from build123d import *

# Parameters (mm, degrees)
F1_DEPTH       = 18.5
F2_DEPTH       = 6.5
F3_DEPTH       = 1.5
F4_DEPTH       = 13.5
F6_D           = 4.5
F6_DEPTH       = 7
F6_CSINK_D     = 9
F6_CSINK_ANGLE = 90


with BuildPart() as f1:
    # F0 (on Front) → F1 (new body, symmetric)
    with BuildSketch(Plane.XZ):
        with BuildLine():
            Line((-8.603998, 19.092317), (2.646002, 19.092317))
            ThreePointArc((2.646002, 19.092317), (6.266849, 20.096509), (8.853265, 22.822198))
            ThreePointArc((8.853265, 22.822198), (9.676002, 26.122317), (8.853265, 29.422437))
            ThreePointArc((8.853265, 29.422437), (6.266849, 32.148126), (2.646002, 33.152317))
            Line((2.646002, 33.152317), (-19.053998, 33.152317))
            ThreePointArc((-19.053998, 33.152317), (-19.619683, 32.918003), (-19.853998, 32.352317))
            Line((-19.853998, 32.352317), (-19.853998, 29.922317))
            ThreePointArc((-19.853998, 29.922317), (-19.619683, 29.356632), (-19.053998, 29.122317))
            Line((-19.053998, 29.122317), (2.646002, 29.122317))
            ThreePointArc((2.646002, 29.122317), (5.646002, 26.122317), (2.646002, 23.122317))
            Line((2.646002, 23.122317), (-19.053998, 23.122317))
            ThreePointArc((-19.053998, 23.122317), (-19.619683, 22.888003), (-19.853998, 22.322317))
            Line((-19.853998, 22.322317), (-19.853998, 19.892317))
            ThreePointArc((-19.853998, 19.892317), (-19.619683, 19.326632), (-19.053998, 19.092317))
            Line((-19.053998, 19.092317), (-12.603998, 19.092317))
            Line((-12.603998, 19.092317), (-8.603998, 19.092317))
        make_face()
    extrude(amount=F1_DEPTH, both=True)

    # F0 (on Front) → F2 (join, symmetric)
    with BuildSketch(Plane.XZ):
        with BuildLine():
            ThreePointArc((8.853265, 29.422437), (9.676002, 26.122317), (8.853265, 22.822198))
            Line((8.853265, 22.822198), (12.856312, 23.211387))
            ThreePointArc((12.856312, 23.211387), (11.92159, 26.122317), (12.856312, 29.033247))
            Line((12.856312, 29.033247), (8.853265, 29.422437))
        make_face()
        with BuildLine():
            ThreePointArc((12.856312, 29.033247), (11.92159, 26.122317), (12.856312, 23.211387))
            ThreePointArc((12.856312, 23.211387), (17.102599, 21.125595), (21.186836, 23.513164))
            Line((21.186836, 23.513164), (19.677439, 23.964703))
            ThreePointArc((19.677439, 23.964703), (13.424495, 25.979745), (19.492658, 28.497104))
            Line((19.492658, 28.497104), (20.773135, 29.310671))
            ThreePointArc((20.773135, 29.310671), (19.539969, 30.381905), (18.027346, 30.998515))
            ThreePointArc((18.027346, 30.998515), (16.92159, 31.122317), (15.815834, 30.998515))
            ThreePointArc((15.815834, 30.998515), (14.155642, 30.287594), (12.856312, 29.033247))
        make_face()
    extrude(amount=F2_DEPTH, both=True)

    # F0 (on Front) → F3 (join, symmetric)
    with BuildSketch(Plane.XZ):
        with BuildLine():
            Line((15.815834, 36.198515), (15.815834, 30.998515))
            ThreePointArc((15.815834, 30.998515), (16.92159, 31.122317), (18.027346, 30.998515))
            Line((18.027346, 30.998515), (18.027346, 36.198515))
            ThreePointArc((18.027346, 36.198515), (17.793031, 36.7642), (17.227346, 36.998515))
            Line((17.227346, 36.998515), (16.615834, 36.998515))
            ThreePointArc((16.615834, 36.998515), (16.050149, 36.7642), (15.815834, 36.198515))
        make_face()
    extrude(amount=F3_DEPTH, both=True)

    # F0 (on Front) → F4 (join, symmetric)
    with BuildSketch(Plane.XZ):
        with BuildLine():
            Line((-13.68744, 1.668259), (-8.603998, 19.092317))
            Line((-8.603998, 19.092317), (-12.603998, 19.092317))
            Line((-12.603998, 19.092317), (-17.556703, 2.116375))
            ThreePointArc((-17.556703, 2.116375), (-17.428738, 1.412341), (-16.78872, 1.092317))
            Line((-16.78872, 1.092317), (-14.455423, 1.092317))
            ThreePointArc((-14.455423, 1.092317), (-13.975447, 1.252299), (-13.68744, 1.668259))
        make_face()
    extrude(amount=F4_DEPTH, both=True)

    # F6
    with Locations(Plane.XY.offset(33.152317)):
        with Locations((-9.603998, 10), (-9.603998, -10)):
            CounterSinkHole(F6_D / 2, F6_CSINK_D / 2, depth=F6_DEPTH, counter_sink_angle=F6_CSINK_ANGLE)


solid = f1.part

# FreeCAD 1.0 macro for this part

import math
import FreeCAD as App
import Part
import Sketcher
from FreeCAD import Vector

doc = App.newDocument("Part")
body = doc.addObject("PartDesign::Body", "Body")

# Sketch on XZ plane
sketch1 = doc.addObject("Sketcher::SketchObject", "Sketch")
body.addObject(sketch1)
sketch1.AttachmentSupport = (doc.XZ_Plane, [""])
sketch1.MapMode = "FlatFace"
sketch1.addGeometry([
    Part.ArcOfCircle(Part.Circle(Vector(2.646001, 26.122319, 0), Vector(0, 0, 1), 7.030002), math.radians(-89.99999), math.radians(-27.997553)),  # 0
    Part.ArcOfCircle(Part.Circle(Vector(2.646, 26.122318, 0), Vector(0, 0, 1), 7.030002), math.radians(-27.997541), math.radians(27.997541)),  # 1
    Part.ArcOfCircle(Part.Circle(Vector(2.646003, 26.122319, 0), Vector(0, 0, 1), 7.029998), math.radians(27.997546), math.radians(90.000011)),  # 2
    Part.LineSegment(Vector(2.646002, 33.152317, 0), Vector(-19.053998, 33.152317, 0)),  # 3
    Part.ArcOfCircle(Part.Circle(Vector(-19.053998, 32.352317, 0), Vector(0, 0, 1), 0.8), math.radians(89.999982), math.radians(180.000018)),  # 4
    Part.LineSegment(Vector(-19.853998, 32.352317, 0), Vector(-19.853998, 29.922317, 0)),  # 5
    Part.ArcOfCircle(Part.Circle(Vector(-19.053997, 29.922318, 0), Vector(0, 0, 1), 0.800001), math.radians(-179.999896), math.radians(-90.000104)),  # 6
    Part.LineSegment(Vector(-19.053998, 29.122317, 0), Vector(2.646002, 29.122317, 0)),  # 7
    Part.ArcOfCircle(Part.Circle(Vector(2.646002, 26.122317, 0), Vector(0, 0, 1), 3), math.radians(-90), math.radians(90)),  # 8
    Part.LineSegment(Vector(2.646002, 23.122317, 0), Vector(-19.053998, 23.122317, 0)),  # 9
    Part.ArcOfCircle(Part.Circle(Vector(-19.053998, 22.322317, 0), Vector(0, 0, 1), 0.8), math.radians(89.999982), math.radians(180.000018)),  # 10
    Part.LineSegment(Vector(-19.853998, 22.322317, 0), Vector(-19.853998, 19.892317, 0)),  # 11
    Part.ArcOfCircle(Part.Circle(Vector(-19.053997, 19.892318, 0), Vector(0, 0, 1), 0.800001), math.radians(-179.999896), math.radians(-90.000104)),  # 12
    Part.LineSegment(Vector(-19.053998, 19.092317, 0), Vector(2.646002, 19.092317, 0)),  # 13
], False)
sketch1.addConstraint([
    Sketcher.Constraint("Tangent", 0, 2, 1, 1),
    Sketcher.Constraint("Tangent", 1, 2, 2, 1),
    Sketcher.Constraint("Tangent", 2, 2, 3, 1),
    Sketcher.Constraint("Tangent", 3, 2, 4, 1),
    Sketcher.Constraint("Tangent", 4, 2, 5, 1),
    Sketcher.Constraint("Tangent", 5, 2, 6, 1),
    Sketcher.Constraint("Tangent", 6, 2, 7, 1),
    Sketcher.Constraint("Tangent", 7, 2, 8, 2),
    Sketcher.Constraint("Tangent", 8, 1, 9, 1),
    Sketcher.Constraint("Tangent", 9, 2, 10, 1),
    Sketcher.Constraint("Tangent", 10, 2, 11, 1),
    Sketcher.Constraint("Tangent", 11, 2, 12, 1),
    Sketcher.Constraint("Tangent", 12, 2, 13, 1),
    Sketcher.Constraint("Tangent", 13, 2, 0, 1),
    Sketcher.Constraint("Horizontal", 3),
    Sketcher.Constraint("Vertical", 5),
    Sketcher.Constraint("Horizontal", 7),
    Sketcher.Constraint("Horizontal", 9),
    Sketcher.Constraint("Vertical", 11),
    Sketcher.Constraint("Horizontal", 13),
    Sketcher.Constraint("Coincident", 2, 3, 0, 3),
    Sketcher.Constraint("Coincident", 8, 3, 0, 3),
    Sketcher.Constraint("Equal", 4, 6),
    Sketcher.Constraint("Equal", 6, 10),
    Sketcher.Constraint("Equal", 10, 12),
    Sketcher.Constraint("Vertical", 6, 3, 10, 3),
    Sketcher.Constraint("Vertical", 0, 2, 1, 2),
    Sketcher.Constraint("Radius", 8, 3.0),
    Sketcher.Constraint("Radius", 4, 0.8),
    Sketcher.Constraint("Radius", 0, 7.030002),
    Sketcher.Constraint("DistanceX", 3, 2, 3, 1, 21.7),
    Sketcher.Constraint("DistanceX", -1, 1, 0, 3, 2.646001),
    Sketcher.Constraint("DistanceY", -1, 1, 0, 2, 22.822198),
    Sketcher.Constraint("DistanceY", -1, 1, 0, 3, 26.122319),
])
pad1 = doc.addObject("PartDesign::Pad", "Pad")
body.addObject(pad1)
pad1.Profile = sketch1
pad1.Length = 37
pad1.Midplane = True

# Sketch on XZ plane
sketch2 = doc.addObject("Sketcher::SketchObject", "Sketch001")
body.addObject(sketch2)
sketch2.AttachmentSupport = (doc.XZ_Plane, [""])
sketch2.MapMode = "FlatFace"
sketch2.addGeometry([
    Part.ArcOfCircle(Part.Circle(Vector(2.646, 26.122318, 0), Vector(0, 0, 1), 7.030002), math.radians(-27.997541), math.radians(27.997541)),  # 0
    Part.LineSegment(Vector(8.853265, 22.822198, 0), Vector(12.856312, 23.211387, 0)),  # 1
    Part.ArcOfCircle(Part.Circle(Vector(16.92159, 26.122318, 0), Vector(0, 0, 1), 5.000001), math.radians(-144.395547), math.radians(-31.455137)),  # 2
    Part.LineSegment(Vector(21.186836, 23.513164, 0), Vector(19.677439, 23.964703, 0)),  # 3
    Part.ArcOfCircle(Part.Circle(Vector(16.92159, 26.122317, 0), Vector(0, 0, 1), 3.5), math.radians(42.727354), math.radians(321.941832)),  # 4
    Part.LineSegment(Vector(19.492658, 28.497104, 0), Vector(20.773135, 29.310671, 0)),  # 5
    Part.ArcOfCircle(Part.Circle(Vector(16.921586, 26.122312, 0), Vector(0, 0, 1), 5.000006), math.radians(39.618372), math.radians(77.223316)),  # 6
    Part.ArcOfCircle(Part.Circle(Vector(16.92159, 26.122304, 0), Vector(0, 0, 1), 5.000013), math.radians(77.223377), math.radians(102.776623)),  # 7
    Part.ArcOfCircle(Part.Circle(Vector(16.921591, 26.122317, 0), Vector(0, 0, 1), 5), math.radians(102.776664), math.radians(144.395563)),  # 8
    Part.LineSegment(Vector(12.856312, 29.033247, 0), Vector(8.853265, 29.422437, 0)),  # 9
], False)
sketch2.addConstraint([
    Sketcher.Constraint("Coincident", 0, 1, 1, 1),
    Sketcher.Constraint("Coincident", 1, 2, 2, 1),
    Sketcher.Constraint("Coincident", 2, 2, 3, 1),
    Sketcher.Constraint("Coincident", 3, 2, 4, 2),
    Sketcher.Constraint("Coincident", 4, 1, 5, 1),
    Sketcher.Constraint("Coincident", 5, 2, 6, 1),
    Sketcher.Constraint("Tangent", 6, 2, 7, 1),
    Sketcher.Constraint("Tangent", 7, 2, 8, 1),
    Sketcher.Constraint("Coincident", 8, 2, 9, 1),
    Sketcher.Constraint("Coincident", 9, 2, 0, 2),
    Sketcher.Constraint("Coincident", 4, 3, 2, 3),
    Sketcher.Constraint("Coincident", 6, 3, 2, 3),
    Sketcher.Constraint("Coincident", 8, 3, 2, 3),
    Sketcher.Constraint("Equal", 2, 8),
    Sketcher.Constraint("Horizontal", 0, 3, 2, 3),
    Sketcher.Constraint("Horizontal", 6, 2, 7, 2),
    Sketcher.Constraint("Vertical", 1, 2, 8, 2),
    Sketcher.Constraint("Vertical", 0, 1, 9, 2),
    Sketcher.Constraint("Radius", 2, 5.000001),
    Sketcher.Constraint("Radius", 4, 3.5),
    Sketcher.Constraint("Radius", 0, 7.030002),
    Sketcher.Constraint("DistanceX", -1, 1, 0, 3, 2.646),
    Sketcher.Constraint("DistanceY", 3, 2, 7, 3, 2.157601),
    Sketcher.Constraint("DistanceY", 7, 3, 4, 1, 2.3748),
    Sketcher.Constraint("Distance", 1, 4.021922),
    Sketcher.Constraint("Distance", 3, 1.575489),
    Sketcher.Constraint("DistanceX", -1, 1, 2, 3, 16.92159),
    Sketcher.Constraint("DistanceY", -1, 1, 2, 3, 26.122318),
    Sketcher.Constraint("DistanceY", -1, 1, 5, 2, 29.310671),
    Sketcher.Constraint("DistanceX", -1, 1, 8, 2, 12.856312),
    Sketcher.Constraint("DistanceX", 6, 2, 4, 1, 1.465312),
])
pad2 = doc.addObject("PartDesign::Pad", "Pad001")
body.addObject(pad2)
pad2.Profile = sketch2
pad2.Length = 13
pad2.Midplane = True

# Sketch on XZ plane
sketch3 = doc.addObject("Sketcher::SketchObject", "Sketch002")
body.addObject(sketch3)
sketch3.AttachmentSupport = (doc.XZ_Plane, [""])
sketch3.MapMode = "FlatFace"
sketch3.addGeometry([
    Part.LineSegment(Vector(15.815834, 36.198515, 0), Vector(15.815834, 30.998515, 0)),  # 0
    Part.ArcOfCircle(Part.Circle(Vector(16.92159, 26.122304, 0), Vector(0, 0, 1), 5.000013), math.radians(77.223377), math.radians(102.776623)),  # 1
    Part.LineSegment(Vector(18.027346, 30.998515, 0), Vector(18.027346, 36.198515, 0)),  # 2
    Part.ArcOfCircle(Part.Circle(Vector(17.227345, 36.198514, 0), Vector(0, 0, 1), 0.800001), math.radians(0.000104), math.radians(89.999896)),  # 3
    Part.LineSegment(Vector(17.227346, 36.998515, 0), Vector(16.615834, 36.998515, 0)),  # 4
    Part.ArcOfCircle(Part.Circle(Vector(16.615835, 36.198514, 0), Vector(0, 0, 1), 0.800001), math.radians(90.000104), math.radians(179.999896)),  # 5
], False)
sketch3.addConstraint([
    Sketcher.Constraint("Coincident", 0, 2, 1, 2),
    Sketcher.Constraint("Coincident", 1, 1, 2, 1),
    Sketcher.Constraint("Tangent", 2, 2, 3, 1),
    Sketcher.Constraint("Tangent", 3, 2, 4, 1),
    Sketcher.Constraint("Tangent", 4, 2, 5, 1),
    Sketcher.Constraint("Tangent", 5, 2, 0, 1),
    Sketcher.Constraint("Vertical", 0),
    Sketcher.Constraint("Vertical", 2),
    Sketcher.Constraint("Horizontal", 4),
    Sketcher.Constraint("Equal", 3, 5),
    Sketcher.Constraint("Horizontal", 0, 2, 1, 1),
    Sketcher.Constraint("Radius", 3, 0.800001),
    Sketcher.Constraint("DistanceY", 0, 2, 0, 1, 5.2),
    Sketcher.Constraint("Radius", 1, 5.000013),
    Sketcher.Constraint("DistanceX", 4, 2, 4, 1, 0.611512),
    Sketcher.Constraint("DistanceX", -1, 1, 1, 3, 16.92159),
    Sketcher.Constraint("DistanceY", -1, 1, 1, 3, 26.122304),
])
pad3 = doc.addObject("PartDesign::Pad", "Pad002")
body.addObject(pad3)
pad3.Profile = sketch3
pad3.Length = 3
pad3.Midplane = True

# Sketch on XZ plane
sketch4 = doc.addObject("Sketcher::SketchObject", "Sketch003")
body.addObject(sketch4)
sketch4.AttachmentSupport = (doc.XZ_Plane, [""])
sketch4.MapMode = "FlatFace"
sketch4.addGeometry([
    Part.LineSegment(Vector(-13.68744, 1.668259, 0), Vector(-8.603998, 19.092317, 0)),  # 0
    Part.LineSegment(Vector(-8.603998, 19.092317, 0), Vector(-12.603998, 19.092317, 0)),  # 1
    Part.LineSegment(Vector(-12.603998, 19.092317, 0), Vector(-17.556703, 2.116375, 0)),  # 2
    Part.ArcOfCircle(Part.Circle(Vector(-16.78872, 1.892317, 0), Vector(0, 0, 1), 0.8), math.radians(163.735459), math.radians(270.000004)),  # 3
    Part.LineSegment(Vector(-16.78872, 1.092317, 0), Vector(-14.455423, 1.092317, 0)),  # 4
    Part.ArcOfCircle(Part.Circle(Vector(-14.455423, 1.892317, 0), Vector(0, 0, 1), 0.8), math.radians(-90.000005), math.radians(-16.264521)),  # 5
], False)
sketch4.addConstraint([
    Sketcher.Constraint("Coincident", 0, 2, 1, 1),
    Sketcher.Constraint("Coincident", 1, 2, 2, 1),
    Sketcher.Constraint("Tangent", 2, 2, 3, 1),
    Sketcher.Constraint("Tangent", 3, 2, 4, 1),
    Sketcher.Constraint("Tangent", 4, 2, 5, 1),
    Sketcher.Constraint("Tangent", 5, 2, 0, 1),
    Sketcher.Constraint("Horizontal", 1),
    Sketcher.Constraint("Horizontal", 4),
    Sketcher.Constraint("Equal", 3, 5),
    Sketcher.Constraint("Parallel", 0, 2),
    Sketcher.Constraint("Radius", 3, 0.8),
    Sketcher.Constraint("DistanceX", 1, 2, 1, 1, 4.0),
    Sketcher.Constraint("DistanceY", 3, 2, 1, 2, 18.0),
    Sketcher.Constraint("DistanceX", 0, 2, -1, 1, 8.603998),
    Sketcher.Constraint("Distance", 0, 18.150459),
    Sketcher.Constraint("DistanceY", -1, 1, 5, 2, 1.668259),
])
pad4 = doc.addObject("PartDesign::Pad", "Pad003")
body.addObject(pad4)
pad4.Profile = sketch4
pad4.Length = 27
pad4.Midplane = True

# Sketch on XY plane
sketch5 = doc.addObject("Sketcher::SketchObject", "Sketch004")
body.addObject(sketch5)
sketch5.AttachmentSupport = (doc.XY_Plane, [""])
sketch5.MapMode = "FlatFace"
sketch5.AttachmentOffset = App.Placement(Vector(0, 0, 33.152317), App.Rotation())
sketch5.addGeometry([
    Part.Circle(Vector(-9.603998, 10, 0), Vector(0, 0, 1), 2.25),
    Part.Circle(Vector(-9.603998, -10, 0), Vector(0, 0, 1), 2.25),
], False)
sketch5.addConstraint([
    Sketcher.Constraint("Equal", 0, 1),
    Sketcher.Constraint("Symmetric", 0, 3, 1, 3, -1),
    Sketcher.Constraint("Diameter", 0, 4.5),
    Sketcher.Constraint("DistanceY", -1, 1, 0, 3, 10.0),
    Sketcher.Constraint("DistanceX", 0, 3, -1, 1, 9.603998),
])
doc.recompute()
hole = doc.addObject("PartDesign::Hole", "Hole")
body.addObject(hole)
hole.Profile = sketch5
hole.ThreadType = "None"
hole.Diameter = 4.5
hole.DepthType = "Dimension"
hole.Depth = 7
hole.DrillPoint = "Flat"
hole.HoleCutType = "Countersink"
hole.HoleCutDiameter = 9
hole.HoleCutCountersinkAngle = 90

doc.recompute()
